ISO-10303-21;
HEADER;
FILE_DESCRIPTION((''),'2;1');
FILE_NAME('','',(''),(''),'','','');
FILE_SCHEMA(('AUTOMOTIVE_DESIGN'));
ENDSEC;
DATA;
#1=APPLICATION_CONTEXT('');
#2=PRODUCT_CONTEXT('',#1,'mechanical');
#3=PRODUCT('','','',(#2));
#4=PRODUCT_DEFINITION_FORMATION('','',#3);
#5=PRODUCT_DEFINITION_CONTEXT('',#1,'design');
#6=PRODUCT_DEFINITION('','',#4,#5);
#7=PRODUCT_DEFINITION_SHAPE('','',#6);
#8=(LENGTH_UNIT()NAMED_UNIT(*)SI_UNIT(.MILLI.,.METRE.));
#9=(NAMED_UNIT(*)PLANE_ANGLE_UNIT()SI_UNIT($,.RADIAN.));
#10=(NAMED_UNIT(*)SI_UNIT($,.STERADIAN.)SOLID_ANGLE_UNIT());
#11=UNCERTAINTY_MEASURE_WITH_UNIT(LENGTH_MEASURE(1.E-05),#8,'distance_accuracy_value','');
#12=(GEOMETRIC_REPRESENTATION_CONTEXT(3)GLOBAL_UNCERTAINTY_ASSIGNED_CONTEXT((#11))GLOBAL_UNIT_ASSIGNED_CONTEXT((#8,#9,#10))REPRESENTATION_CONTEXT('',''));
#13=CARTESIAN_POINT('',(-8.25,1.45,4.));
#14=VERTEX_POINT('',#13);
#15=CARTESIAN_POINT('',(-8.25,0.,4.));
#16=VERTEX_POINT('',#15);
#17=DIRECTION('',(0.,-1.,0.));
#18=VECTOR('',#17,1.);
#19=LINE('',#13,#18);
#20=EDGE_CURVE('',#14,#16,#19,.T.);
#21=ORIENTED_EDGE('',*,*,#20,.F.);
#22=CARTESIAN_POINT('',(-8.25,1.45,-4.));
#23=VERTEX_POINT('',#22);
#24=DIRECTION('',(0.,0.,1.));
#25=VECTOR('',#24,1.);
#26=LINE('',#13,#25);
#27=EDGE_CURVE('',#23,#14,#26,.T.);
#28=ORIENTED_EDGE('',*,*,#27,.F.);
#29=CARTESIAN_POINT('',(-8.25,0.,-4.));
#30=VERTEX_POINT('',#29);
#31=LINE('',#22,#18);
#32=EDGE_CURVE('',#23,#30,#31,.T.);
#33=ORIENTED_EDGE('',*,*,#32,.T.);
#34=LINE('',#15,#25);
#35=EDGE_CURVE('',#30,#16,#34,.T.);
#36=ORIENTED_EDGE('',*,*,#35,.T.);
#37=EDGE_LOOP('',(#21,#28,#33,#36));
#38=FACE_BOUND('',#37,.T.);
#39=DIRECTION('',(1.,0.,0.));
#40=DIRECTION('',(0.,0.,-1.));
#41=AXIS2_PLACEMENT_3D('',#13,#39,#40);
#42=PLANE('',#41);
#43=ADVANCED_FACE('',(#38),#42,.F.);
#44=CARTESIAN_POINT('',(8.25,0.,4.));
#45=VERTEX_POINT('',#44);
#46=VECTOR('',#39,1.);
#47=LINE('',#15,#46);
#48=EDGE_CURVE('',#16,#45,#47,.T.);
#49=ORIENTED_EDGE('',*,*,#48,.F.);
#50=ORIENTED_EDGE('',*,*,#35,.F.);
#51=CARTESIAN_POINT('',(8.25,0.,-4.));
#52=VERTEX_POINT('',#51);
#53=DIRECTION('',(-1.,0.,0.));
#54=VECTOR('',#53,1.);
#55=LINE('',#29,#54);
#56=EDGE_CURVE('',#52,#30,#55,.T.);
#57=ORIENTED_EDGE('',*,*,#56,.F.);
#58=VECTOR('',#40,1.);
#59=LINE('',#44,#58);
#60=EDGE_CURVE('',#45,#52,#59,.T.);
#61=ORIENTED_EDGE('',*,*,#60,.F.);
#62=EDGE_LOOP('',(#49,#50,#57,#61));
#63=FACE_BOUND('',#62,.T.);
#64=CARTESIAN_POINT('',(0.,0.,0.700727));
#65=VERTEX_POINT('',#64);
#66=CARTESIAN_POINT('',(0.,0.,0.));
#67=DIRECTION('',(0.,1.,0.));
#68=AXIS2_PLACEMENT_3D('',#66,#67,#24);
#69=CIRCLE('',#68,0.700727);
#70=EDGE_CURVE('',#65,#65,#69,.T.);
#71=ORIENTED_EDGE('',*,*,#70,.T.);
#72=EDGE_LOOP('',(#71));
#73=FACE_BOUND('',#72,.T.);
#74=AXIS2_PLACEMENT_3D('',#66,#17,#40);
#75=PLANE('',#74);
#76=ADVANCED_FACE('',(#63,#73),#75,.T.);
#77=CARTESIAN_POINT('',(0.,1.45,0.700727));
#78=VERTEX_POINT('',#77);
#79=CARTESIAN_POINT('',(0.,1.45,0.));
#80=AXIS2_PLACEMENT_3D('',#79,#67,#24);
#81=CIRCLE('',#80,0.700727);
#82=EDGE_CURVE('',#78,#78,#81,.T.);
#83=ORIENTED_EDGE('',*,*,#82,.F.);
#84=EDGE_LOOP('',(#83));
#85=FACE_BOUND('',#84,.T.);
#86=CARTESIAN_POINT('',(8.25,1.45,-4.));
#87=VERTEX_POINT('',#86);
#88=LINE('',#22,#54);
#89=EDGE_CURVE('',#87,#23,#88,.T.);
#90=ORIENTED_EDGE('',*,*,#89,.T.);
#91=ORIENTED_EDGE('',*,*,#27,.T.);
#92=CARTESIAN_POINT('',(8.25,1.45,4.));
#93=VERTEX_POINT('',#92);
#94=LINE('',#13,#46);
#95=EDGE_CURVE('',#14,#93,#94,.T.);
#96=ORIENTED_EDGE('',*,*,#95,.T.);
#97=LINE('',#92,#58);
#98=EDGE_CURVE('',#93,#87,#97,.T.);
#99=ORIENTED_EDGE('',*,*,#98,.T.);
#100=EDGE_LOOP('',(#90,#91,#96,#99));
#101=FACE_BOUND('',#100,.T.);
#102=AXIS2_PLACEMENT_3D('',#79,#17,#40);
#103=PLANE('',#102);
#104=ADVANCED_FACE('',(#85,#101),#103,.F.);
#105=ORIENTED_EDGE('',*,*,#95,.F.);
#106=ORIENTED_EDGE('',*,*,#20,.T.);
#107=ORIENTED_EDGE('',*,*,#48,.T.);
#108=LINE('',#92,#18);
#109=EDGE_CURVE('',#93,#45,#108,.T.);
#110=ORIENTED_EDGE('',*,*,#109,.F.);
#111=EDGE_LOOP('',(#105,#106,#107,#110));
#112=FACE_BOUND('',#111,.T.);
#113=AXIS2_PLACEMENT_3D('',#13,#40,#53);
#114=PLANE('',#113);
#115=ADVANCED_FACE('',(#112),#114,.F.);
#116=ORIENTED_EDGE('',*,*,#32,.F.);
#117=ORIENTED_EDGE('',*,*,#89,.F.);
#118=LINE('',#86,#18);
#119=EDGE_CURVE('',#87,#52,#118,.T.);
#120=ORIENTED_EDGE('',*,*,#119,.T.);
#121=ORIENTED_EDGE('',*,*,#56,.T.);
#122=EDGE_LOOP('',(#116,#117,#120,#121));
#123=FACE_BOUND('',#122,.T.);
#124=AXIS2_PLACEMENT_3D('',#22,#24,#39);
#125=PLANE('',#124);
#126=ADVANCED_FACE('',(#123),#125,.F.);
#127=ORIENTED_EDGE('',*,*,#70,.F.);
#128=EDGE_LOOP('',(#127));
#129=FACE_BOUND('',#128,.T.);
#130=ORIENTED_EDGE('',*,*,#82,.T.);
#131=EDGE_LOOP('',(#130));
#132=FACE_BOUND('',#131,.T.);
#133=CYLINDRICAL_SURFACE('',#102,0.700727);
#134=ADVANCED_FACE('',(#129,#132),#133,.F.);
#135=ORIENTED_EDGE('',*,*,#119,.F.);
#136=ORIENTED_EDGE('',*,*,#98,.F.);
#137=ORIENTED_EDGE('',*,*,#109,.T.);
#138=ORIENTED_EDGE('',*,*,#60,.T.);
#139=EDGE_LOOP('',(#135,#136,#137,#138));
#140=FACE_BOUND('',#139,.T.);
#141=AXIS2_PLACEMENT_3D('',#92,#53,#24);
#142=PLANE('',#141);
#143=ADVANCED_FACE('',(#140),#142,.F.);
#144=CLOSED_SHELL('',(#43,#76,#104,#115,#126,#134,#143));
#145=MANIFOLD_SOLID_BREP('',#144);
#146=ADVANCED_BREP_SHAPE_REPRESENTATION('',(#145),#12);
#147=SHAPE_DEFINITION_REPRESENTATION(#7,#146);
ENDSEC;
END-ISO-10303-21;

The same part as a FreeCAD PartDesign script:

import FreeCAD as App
import Part
import Sketcher

V = App.Vector


def add_polygon(sketch, points):
    """Adds a closed chain of lines whose ends are joined by coincident constraints."""
    first, n = sketch.GeometryCount, len(points)
    for a, b in zip(points, points[1:] + points[:1]):
        sketch.addGeometry(Part.LineSegment(App.Vector(*a, 0), App.Vector(*b, 0)), False)
    for i in range(n):
        sketch.addConstraint(Sketcher.Constraint("Coincident", first + i, 2, first + (i + 1) % n, 1))

doc = App.newDocument("Part")
body = doc.addObject("PartDesign::Body", "Body")

sketch1 = body.newObject("Sketcher::SketchObject", "Sketch")
sketch1.AttachmentSupport = (doc.getObject("XZ_Plane"), [""])
sketch1.MapMode = "FlatFace"
add_polygon(sketch1, [(-8.2, -4), (-8.2, 4), (8.2, 4), (8.2, -4)])
sketch1.addGeometry(Part.Circle(V(0, 0, 0), V(0, 0, 1), 0.7), False)
sketch1.addConstraint(Sketcher.Constraint("Vertical", 0))
sketch1.addConstraint(Sketcher.Constraint("Horizontal", 1))
sketch1.addConstraint(Sketcher.Constraint("Vertical", 2))
sketch1.addConstraint(Sketcher.Constraint("Horizontal", 3))
sketch1.addConstraint(Sketcher.Constraint("Coincident", 4, 3, -1, 1))
sketch1.addConstraint(Sketcher.Constraint("Symmetric", 0, 2, 2, 2, -1, 1))
sketch1.addConstraint(Sketcher.Constraint("DistanceY", 0, 1, 0, 2, 8.0))
sketch1.addConstraint(Sketcher.Constraint("DistanceX", 1, 1, 1, 2, 16.5))
sketch1.addConstraint(Sketcher.Constraint("Diameter", 4, 1.401454))
pad1 = body.newObject("PartDesign::Pad", "Pad")
pad1.Profile = sketch1
pad1.Length = 1.45
pad1.Reversed = True

doc.recompute()
